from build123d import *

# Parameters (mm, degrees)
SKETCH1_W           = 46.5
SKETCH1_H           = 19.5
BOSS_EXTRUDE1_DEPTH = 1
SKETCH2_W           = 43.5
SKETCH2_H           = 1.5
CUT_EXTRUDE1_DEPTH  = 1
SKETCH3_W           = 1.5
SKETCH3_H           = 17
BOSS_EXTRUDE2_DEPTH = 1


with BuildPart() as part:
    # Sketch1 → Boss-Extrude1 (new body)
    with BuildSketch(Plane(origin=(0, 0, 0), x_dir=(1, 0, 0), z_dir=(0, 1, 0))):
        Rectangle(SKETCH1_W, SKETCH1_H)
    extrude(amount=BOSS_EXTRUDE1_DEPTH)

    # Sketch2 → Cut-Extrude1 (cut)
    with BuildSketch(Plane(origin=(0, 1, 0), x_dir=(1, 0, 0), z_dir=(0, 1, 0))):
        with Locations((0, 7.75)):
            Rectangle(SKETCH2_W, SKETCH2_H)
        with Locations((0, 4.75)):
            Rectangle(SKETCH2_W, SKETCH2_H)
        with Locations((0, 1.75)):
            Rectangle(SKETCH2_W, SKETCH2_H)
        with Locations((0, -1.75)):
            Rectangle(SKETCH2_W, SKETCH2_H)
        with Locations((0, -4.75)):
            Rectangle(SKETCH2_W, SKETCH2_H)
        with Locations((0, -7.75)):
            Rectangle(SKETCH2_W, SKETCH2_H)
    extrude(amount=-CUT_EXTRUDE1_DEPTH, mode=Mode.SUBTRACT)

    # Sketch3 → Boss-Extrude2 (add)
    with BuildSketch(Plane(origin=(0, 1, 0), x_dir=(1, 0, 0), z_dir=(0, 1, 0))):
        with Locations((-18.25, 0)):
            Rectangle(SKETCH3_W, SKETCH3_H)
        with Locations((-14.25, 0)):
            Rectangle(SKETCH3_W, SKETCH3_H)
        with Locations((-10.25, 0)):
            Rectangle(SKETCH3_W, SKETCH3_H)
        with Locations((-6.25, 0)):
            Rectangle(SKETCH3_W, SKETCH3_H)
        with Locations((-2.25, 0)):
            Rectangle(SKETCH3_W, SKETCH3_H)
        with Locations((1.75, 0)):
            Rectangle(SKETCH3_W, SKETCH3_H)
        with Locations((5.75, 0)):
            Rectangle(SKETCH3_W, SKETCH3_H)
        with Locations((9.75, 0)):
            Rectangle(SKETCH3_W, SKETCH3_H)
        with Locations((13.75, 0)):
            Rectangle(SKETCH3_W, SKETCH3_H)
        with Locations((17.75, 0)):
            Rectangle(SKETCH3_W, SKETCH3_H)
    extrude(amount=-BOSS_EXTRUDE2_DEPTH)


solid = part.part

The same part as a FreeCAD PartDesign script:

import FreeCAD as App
import Part
import Sketcher

V = App.Vector

doc = App.newDocument("Part")
params = doc.addObject("Spreadsheet::Sheet", "Params")
for row, (alias, value) in enumerate([
    ("sketch1_width", "46.5 mm"),
    ("sketch1_height", "19.5 mm"),
    ("pad1_length", "1 mm"),
    ("sketch2_width", "43.5 mm"),
    ("sketch2_height", "1.5 mm"),
    ("pocket1_length", "1 mm"),
    ("sketch3_height", "17 mm"),
    ("sketch3_width", "1.5 mm"),
    ("pad2_length", "1 mm"),
], start=1):
    params.set(f"A{row}", alias)
    params.set(f"B{row}", "=" + value)
    params.setAlias(f"B{row}", alias)

body = doc.addObject("PartDesign::Body", "Body")

# Sketch on XZ plane
sketch1 = body.newObject("Sketcher::SketchObject", "Sketch")
sketch1.AttachmentSupport = (doc.getObject("XZ_Plane"), [""])
sketch1.MapMode = "FlatFace"
sketch1.addGeometry([
    Part.LineSegment(V(-23, -10, 0), V(-23, 10, 0)),
    Part.LineSegment(V(-23, 10, 0), V(23, 10, 0)),
    Part.LineSegment(V(23, 10, 0), V(23, -10, 0)),
    Part.LineSegment(V(23, -10, 0), V(-23, -10, 0)),
], False)
sketch1.addConstraint([
    Sketcher.Constraint("Coincident", 0, 2, 1, 1),
    Sketcher.Constraint("Coincident", 1, 2, 2, 1),
    Sketcher.Constraint("Coincident", 2, 2, 3, 1),
    Sketcher.Constraint("Coincident", 3, 2, 0, 1),
    Sketcher.Constraint("Vertical", 0),
    Sketcher.Constraint("Horizontal", 1),
    Sketcher.Constraint("Vertical", 2),
    Sketcher.Constraint("Horizontal", 3),
    Sketcher.Constraint("Symmetric", 0, 2, 2, 2, -1, 1),
    Sketcher.Constraint("DistanceX", 1, 1, 1, 2, 46.5),
    Sketcher.Constraint("DistanceY", 0, 1, 0, 2, 19.5),
])
sketch1.setExpression("Constraints[9]", "Params.sketch1_width")
sketch1.setExpression("Constraints[10]", "Params.sketch1_height")
pad1 = body.newObject("PartDesign::Pad", "Pad")
pad1.Profile = sketch1
pad1.setExpression("Length", "Params.pad1_length")
pad1.Reversed = True

# Sketch on XZ plane
sketch2 = body.newObject("Sketcher::SketchObject", "Sketch001")
sketch2.AttachmentSupport = (doc.getObject("XZ_Plane"), [""])
sketch2.MapMode = "FlatFace"
sketch2.AttachmentOffset = App.Placement(V(0, 0, -1), App.Rotation())
sketch2.addGeometry([
    Part.LineSegment(V(-21.8, -8.5, 0), V(-21.8, -7, 0)),  # 0
    Part.LineSegment(V(-21.8, -7, 0), V(21.8, -7, 0)),  # 1
    Part.LineSegment(V(21.8, -7, 0), V(21.8, -8.5, 0)),  # 2
    Part.LineSegment(V(21.8, -8.5, 0), V(-21.8, -8.5, 0)),  # 3
    Part.LineSegment(V(-21.8, -5.5, 0), V(-21.8, -4, 0)),  # 4
    Part.LineSegment(V(-21.8, -4, 0), V(21.8, -4, 0)),  # 5
    Part.LineSegment(V(21.8, -4, 0), V(21.8, -5.5, 0)),  # 6
    Part.LineSegment(V(21.8, -5.5, 0), V(-21.8, -5.5, 0)),  # 7
    Part.LineSegment(V(-21.8, -2.5, 0), V(-21.8, -1, 0)),  # 8
    Part.LineSegment(V(-21.8, -1, 0), V(21.8, -1, 0)),  # 9
    Part.LineSegment(V(21.8, -1, 0), V(21.8, -2.5, 0)),  # 10
    Part.LineSegment(V(21.8, -2.5, 0), V(-21.8, -2.5, 0)),  # 11
    Part.LineSegment(V(-21.8, 1, 0), V(-21.8, 2.5, 0)),  # 12
    Part.LineSegment(V(-21.8, 2.5, 0), V(21.8, 2.5, 0)),  # 13
    Part.LineSegment(V(21.8, 2.5, 0), V(21.8, 1, 0)),  # 14
    Part.LineSegment(V(21.8, 1, 0), V(-21.8, 1, 0)),  # 15
    Part.LineSegment(V(-21.8, 4, 0), V(-21.8, 5.5, 0)),  # 16
    Part.LineSegment(V(-21.8, 5.5, 0), V(21.8, 5.5, 0)),  # 17
    Part.LineSegment(V(21.8, 5.5, 0), V(21.8, 4, 0)),  # 18
    Part.LineSegment(V(21.8, 4, 0), V(-21.8, 4, 0)),  # 19
    Part.LineSegment(V(-21.8, 7, 0), V(-21.8, 8.5, 0)),  # 20
    Part.LineSegment(V(-21.8, 8.5, 0), V(21.8, 8.5, 0)),  # 21
    Part.LineSegment(V(21.8, 8.5, 0), V(21.8, 7, 0)),  # 22
    Part.LineSegment(V(21.8, 7, 0), V(-21.8, 7, 0)),  # 23
], False)
sketch2.addConstraint([
    Sketcher.Constraint("Coincident", 0, 2, 1, 1),
    Sketcher.Constraint("Coincident", 1, 2, 2, 1),
    Sketcher.Constraint("Coincident", 2, 2, 3, 1),
    Sketcher.Constraint("Coincident", 3, 2, 0, 1),
    Sketcher.Constraint("Coincident", 4, 2, 5, 1),
    Sketcher.Constraint("Coincident", 5, 2, 6, 1),
    Sketcher.Constraint("Coincident", 6, 2, 7, 1),
    Sketcher.Constraint("Coincident", 7, 2, 4, 1),
    Sketcher.Constraint("Coincident", 8, 2, 9, 1),
    Sketcher.Constraint("Coincident", 9, 2, 10, 1),
    Sketcher.Constraint("Coincident", 10, 2, 11, 1),
    Sketcher.Constraint("Coincident", 11, 2, 8, 1),
    Sketcher.Constraint("Coincident", 12, 2, 13, 1),
    Sketcher.Constraint("Coincident", 13, 2, 14, 1),
    Sketcher.Constraint("Coincident", 14, 2, 15, 1),
    Sketcher.Constraint("Coincident", 15, 2, 12, 1),
    Sketcher.Constraint("Coincident", 16, 2, 17, 1),
    Sketcher.Constraint("Coincident", 17, 2, 18, 1),
    Sketcher.Constraint("Coincident", 18, 2, 19, 1),
    Sketcher.Constraint("Coincident", 19, 2, 16, 1),
    Sketcher.Constraint("Coincident", 20, 2, 21, 1),
    Sketcher.Constraint("Coincident", 21, 2, 22, 1),
    Sketcher.Constraint("Coincident", 22, 2, 23, 1),
    Sketcher.Constraint("Coincident", 23, 2, 20, 1),
    Sketcher.Constraint("Vertical", 0),
    Sketcher.Constraint("Horizontal", 1),
    Sketcher.Constraint("Vertical", 2),
    Sketcher.Constraint("Horizontal", 3),
    Sketcher.Constraint("Vertical", 4),
    Sketcher.Constraint("Horizontal", 5),
    Sketcher.Constraint("Vertical", 6),
    Sketcher.Constraint("Horizontal", 7),
    Sketcher.Constraint("Vertical", 8),
    Sketcher.Constraint("Horizontal", 9),
    Sketcher.Constraint("Vertical", 10),
    Sketcher.Constraint("Horizontal", 11),
    Sketcher.Constraint("Vertical", 12),
    Sketcher.Constraint("Horizontal", 13),
    Sketcher.Constraint("Vertical", 14),
    Sketcher.Constraint("Horizontal", 15),
    Sketcher.Constraint("Vertical", 16),
    Sketcher.Constraint("Horizontal", 17),
    Sketcher.Constraint("Vertical", 18),
    Sketcher.Constraint("Horizontal", 19),
    Sketcher.Constraint("Vertical", 20),
    Sketcher.Constraint("Horizontal", 21),
    Sketcher.Constraint("Vertical", 22),
    Sketcher.Constraint("Horizontal", 23),
    Sketcher.Constraint("Symmetric", 10, 2, 12, 2, -1, 1),
    Sketcher.Constraint("Symmetric", 8, 2, 14, 2, -1, 1),
    Sketcher.Constraint("Symmetric", 6, 2, 16, 2, -1, 1),
    Sketcher.Constraint("Symmetric", 4, 2, 18, 2, -1, 1),
    Sketcher.Constraint("Symmetric", 2, 2, 20, 2, -1, 1),
    Sketcher.Constraint("Symmetric", 0, 2, 22, 2, -1, 1),
    Sketcher.Constraint("Vertical", 3, 2, 4, 2),
    Sketcher.Constraint("Vertical", 2, 2, 5, 2),
    Sketcher.Constraint("Vertical", 7, 2, 8, 2),
    Sketcher.Constraint("Vertical", 6, 2, 9, 2),
    Sketcher.Constraint("Vertical", 11, 2, 12, 2),
    Sketcher.Constraint("Equal", 2, 4),
    Sketcher.Constraint("Equal", 6, 8),
    Sketcher.Constraint("DistanceX", 1, 1, 1, 2, 43.5),
    Sketcher.Constraint("DistanceY", 0, 1, 0, 2, 1.5),
    Sketcher.Constraint("DistanceY", 0, 2, -1, 1, 7.0),
    Sketcher.Constraint("DistanceY", 4, 2, -1, 1, 4.0),
    Sketcher.Constraint("DistanceY", 8, 2, -1, 1, 1.0),
])
sketch2.setExpression("Constraints[61]", "Params.sketch2_width")
sketch2.setExpression("Constraints[62]", "Params.sketch2_height")
pocket1 = body.newObject("PartDesign::Pocket", "Pocket")
pocket1.Profile = sketch2
pocket1.setExpression("Length", "Params.pocket1_length")
pocket1.Reversed = True

# Sketch on XZ plane
sketch3 = body.newObject("Sketcher::SketchObject", "Sketch002")
sketch3.AttachmentSupport = (doc.getObject("XZ_Plane"), [""])
sketch3.MapMode = "FlatFace"
sketch3.AttachmentOffset = App.Placement(V(0, 0, -1), App.Rotation())
sketch3.addGeometry([
    Part.LineSegment(V(-19, -8.5, 0), V(-19, 8.5, 0)),  # 0
    Part.LineSegment(V(-19, 8.5, 0), V(-17.5, 8.5, 0)),  # 1
    Part.LineSegment(V(-17.5, 8.5, 0), V(-17.5, -8.5, 0)),  # 2
    Part.LineSegment(V(-17.5, -8.5, 0), V(-19, -8.5, 0)),  # 3
    Part.LineSegment(V(-15, -8.5, 0), V(-15, 8.5, 0)),  # 4
    Part.LineSegment(V(-15, 8.5, 0), V(-13.5, 8.5, 0)),  # 5
    Part.LineSegment(V(-13.5, 8.5, 0), V(-13.5, -8.5, 0)),  # 6
    Part.LineSegment(V(-13.5, -8.5, 0), V(-15, -8.5, 0)),  # 7
    Part.LineSegment(V(-11, -8.5, 0), V(-11, 8.5, 0)),  # 8
    Part.LineSegment(V(-11, 8.5, 0), V(-9.5, 8.5, 0)),  # 9
    Part.LineSegment(V(-9.5, 8.5, 0), V(-9.5, -8.5, 0)),  # 10
    Part.LineSegment(V(-9.5, -8.5, 0), V(-11, -8.5, 0)),  # 11
    Part.LineSegment(V(-7, -8.5, 0), V(-7, 8.5, 0)),  # 12
    Part.LineSegment(V(-7, 8.5, 0), V(-5.5, 8.5, 0)),  # 13
    Part.LineSegment(V(-5.5, 8.5, 0), V(-5.5, -8.5, 0)),  # 14
    Part.LineSegment(V(-5.5, -8.5, 0), V(-7, -8.5, 0)),  # 15
    Part.LineSegment(V(-3, -8.5, 0), V(-3, 8.5, 0)),  # 16
    Part.LineSegment(V(-3, 8.5, 0), V(-1.5, 8.5, 0)),  # 17
    Part.LineSegment(V(-1.5, 8.5, 0), V(-1.5, -8.5, 0)),  # 18
    Part.LineSegment(V(-1.5, -8.5, 0), V(-3, -8.5, 0)),  # 19
    Part.LineSegment(V(1, -8.5, 0), V(1, 8.5, 0)),  # 20
    Part.LineSegment(V(1, 8.5, 0), V(2.5, 8.5, 0)),  # 21
    Part.LineSegment(V(2.5, 8.5, 0), V(2.5, -8.5, 0)),  # 22
    Part.LineSegment(V(2.5, -8.5, 0), V(1, -8.5, 0)),  # 23
    Part.LineSegment(V(5, -8.5, 0), V(5, 8.5, 0)),  # 24
    Part.LineSegment(V(5, 8.5, 0), V(6.5, 8.5, 0)),  # 25
    Part.LineSegment(V(6.5, 8.5, 0), V(6.5, -8.5, 0)),  # 26
    Part.LineSegment(V(6.5, -8.5, 0), V(5, -8.5, 0)),  # 27
    Part.LineSegment(V(9, -8.5, 0), V(9, 8.5, 0)),  # 28
    Part.LineSegment(V(9, 8.5, 0), V(10.5, 8.5, 0)),  # 29
    Part.LineSegment(V(10.5, 8.5, 0), V(10.5, -8.5, 0)),  # 30
    Part.LineSegment(V(10.5, -8.5, 0), V(9, -8.5, 0)),  # 31
    Part.LineSegment(V(13, -8.5, 0), V(13, 8.5, 0)),  # 32
    Part.LineSegment(V(13, 8.5, 0), V(14.5, 8.5, 0)),  # 33
    Part.LineSegment(V(14.5, 8.5, 0), V(14.5, -8.5, 0)),  # 34
    Part.LineSegment(V(14.5, -8.5, 0), V(13, -8.5, 0)),  # 35
    Part.LineSegment(V(17, -8.5, 0), V(17, 8.5, 0)),  # 36
    Part.LineSegment(V(17, 8.5, 0), V(18.5, 8.5, 0)),  # 37
    Part.LineSegment(V(18.5, 8.5, 0), V(18.5, -8.5, 0)),  # 38
    Part.LineSegment(V(18.5, -8.5, 0), V(17, -8.5, 0)),  # 39
], False)
sketch3.addConstraint([
    Sketcher.Constraint("Coincident", 0, 2, 1, 1),
    Sketcher.Constraint("Coincident", 1, 2, 2, 1),
    Sketcher.Constraint("Coincident", 2, 2, 3, 1),
    Sketcher.Constraint("Coincident", 3, 2, 0, 1),
    Sketcher.Constraint("Coincident", 4, 2, 5, 1),
    Sketcher.Constraint("Coincident", 5, 2, 6, 1),
    Sketcher.Constraint("Coincident", 6, 2, 7, 1),
    Sketcher.Constraint("Coincident", 7, 2, 4, 1),
    Sketcher.Constraint("Coincident", 8, 2, 9, 1),
    Sketcher.Constraint("Coincident", 9, 2, 10, 1),
    Sketcher.Constraint("Coincident", 10, 2, 11, 1),
    Sketcher.Constraint("Coincident", 11, 2, 8, 1),
    Sketcher.Constraint("Coincident", 12, 2, 13, 1),
    Sketcher.Constraint("Coincident", 13, 2, 14, 1),
    Sketcher.Constraint("Coincident", 14, 2, 15, 1),
    Sketcher.Constraint("Coincident", 15, 2, 12, 1),
    Sketcher.Constraint("Coincident", 16, 2, 17, 1),
    Sketcher.Constraint("Coincident", 17, 2, 18, 1),
    Sketcher.Constraint("Coincident", 18, 2, 19, 1),
    Sketcher.Constraint("Coincident", 19, 2, 16, 1),
    Sketcher.Constraint("Coincident", 20, 2, 21, 1),
    Sketcher.Constraint("Coincident", 21, 2, 22, 1),
    Sketcher.Constraint("Coincident", 22, 2, 23, 1),
    Sketcher.Constraint("Coincident", 23, 2, 20, 1),
    Sketcher.Constraint("Coincident", 24, 2, 25, 1),
    Sketcher.Constraint("Coincident", 25, 2, 26, 1),
    Sketcher.Constraint("Coincident", 26, 2, 27, 1),
    Sketcher.Constraint("Coincident", 27, 2, 24, 1),
    Sketcher.Constraint("Coincident", 28, 2, 29, 1),
    Sketcher.Constraint("Coincident", 29, 2, 30, 1),
    Sketcher.Constraint("Coincident", 30, 2, 31, 1),
    Sketcher.Constraint("Coincident", 31, 2, 28, 1),
    Sketcher.Constraint("Coincident", 32, 2, 33, 1),
    Sketcher.Constraint("Coincident", 33, 2, 34, 1),
    Sketcher.Constraint("Coincident", 34, 2, 35, 1),
    Sketcher.Constraint("Coincident", 35, 2, 32, 1),
    Sketcher.Constraint("Coincident", 36, 2, 37, 1),
    Sketcher.Constraint("Coincident", 37, 2, 38, 1),
    Sketcher.Constraint("Coincident", 38, 2, 39, 1),
    Sketcher.Constraint("Coincident", 39, 2, 36, 1),
    Sketcher.Constraint("Vertical", 0),
    Sketcher.Constraint("Horizontal", 1),
    Sketcher.Constraint("Vertical", 2),
    Sketcher.Constraint("Horizontal", 3),
    Sketcher.Constraint("Vertical", 4),
    Sketcher.Constraint("Horizontal", 5),
    Sketcher.Constraint("Vertical", 6),
    Sketcher.Constraint("Horizontal", 7),
    Sketcher.Constraint("Vertical", 8),
    Sketcher.Constraint("Horizontal", 9),
    Sketcher.Constraint("Vertical", 10),
    Sketcher.Constraint("Horizontal", 11),
    Sketcher.Constraint("Vertical", 12),
    Sketcher.Constraint("Horizontal", 13),
    Sketcher.Constraint("Vertical", 14),
    Sketcher.Constraint("Horizontal", 15),
    Sketcher.Constraint("Vertical", 16),
    Sketcher.Constraint("Horizontal", 17),
    Sketcher.Constraint("Vertical", 18),
    Sketcher.Constraint("Horizontal", 19),
    Sketcher.Constraint("Vertical", 20),
    Sketcher.Constraint("Horizontal", 21),
    Sketcher.Constraint("Vertical", 22),
    Sketcher.Constraint("Horizontal", 23),
    Sketcher.Constraint("Vertical", 24),
    Sketcher.Constraint("Horizontal", 25),
    Sketcher.Constraint("Vertical", 26),
    Sketcher.Constraint("Horizontal", 27),
    Sketcher.Constraint("Vertical", 28),
    Sketcher.Constraint("Horizontal", 29),
    Sketcher.Constraint("Vertical", 30),
    Sketcher.Constraint("Horizontal", 31),
    Sketcher.Constraint("Vertical", 32),
    Sketcher.Constraint("Horizontal", 33),
    Sketcher.Constraint("Vertical", 34),
    Sketcher.Constraint("Horizontal", 35),
    Sketcher.Constraint("Vertical", 36),
    Sketcher.Constraint("Horizontal", 37),
    Sketcher.Constraint("Vertical", 38),
    Sketcher.Constraint("Horizontal", 39),
    Sketcher.Constraint("Horizontal", 1, 2, 4, 2),
    Sketcher.Constraint("Horizontal", 3, 2, 6, 2),
    Sketcher.Constraint("Horizontal", 5, 2, 8, 2),
    Sketcher.Constraint("Horizontal", 7, 2, 10, 2),
    Sketcher.Constraint("Horizontal", 9, 2, 12, 2),
    Sketcher.Constraint("Horizontal", 11, 2, 14, 2),
    Sketcher.Constraint("Horizontal", 13, 2, 16, 2),
    Sketcher.Constraint("Horizontal", 15, 2, 18, 2),
    Sketcher.Constraint("Horizontal", 17, 2, 20, 2),
    Sketcher.Constraint("Horizontal", 19, 2, 22, 2),
    Sketcher.Constraint("Horizontal", 21, 2, 24, 2),
    Sketcher.Constraint("Horizontal", 23, 2, 26, 2),
    Sketcher.Constraint("Horizontal", 25, 2, 28, 2),
    Sketcher.Constraint("Horizontal", 27, 2, 30, 2),
    Sketcher.Constraint("Horizontal", 29, 2, 32, 2),
    Sketcher.Constraint("Horizontal", 31, 2, 34, 2),
    Sketcher.Constraint("Horizontal", 33, 2, 36, 2),
    Sketcher.Constraint("Horizontal", 35, 2, 38, 2),
    Sketcher.Constraint("Equal", 3, 5),
    Sketcher.Constraint("Equal", 7, 9),
    Sketcher.Constraint("Equal", 11, 13),
    Sketcher.Constraint("Equal", 15, 17),
    Sketcher.Constraint("Equal", 19, 21),
    Sketcher.Constraint("Equal", 23, 25),
    Sketcher.Constraint("Equal", 27, 29),
    Sketcher.Constraint("Equal", 31, 33),
    Sketcher.Constraint("Equal", 35, 37),
    Sketcher.Constraint("DistanceY", 0, 1, 0, 2, 17.0),
    Sketcher.Constraint("DistanceX", 1, 1, 1, 2, 1.5),
    Sketcher.Constraint("DistanceX", 0, 2, -1, 1, 19.0),
    Sketcher.Constraint("DistanceX", 4, 2, -1, 1, 15.0),
    Sketcher.Constraint("DistanceX", 8, 2, -1, 1, 11.0),
    Sketcher.Constraint("DistanceX", 12, 2, -1, 1, 7.0),
    Sketcher.Constraint("DistanceX", 16, 2, -1, 1, 3.0),
    Sketcher.Constraint("DistanceX", -1, 1, 20, 2, 1.0),
    Sketcher.Constraint("DistanceX", -1, 1, 24, 2, 5.0),
    Sketcher.Constraint("DistanceX", -1, 1, 28, 2, 9.0),
    Sketcher.Constraint("DistanceX", -1, 1, 32, 2, 13.0),
    Sketcher.Constraint("DistanceX", -1, 1, 36, 2, 17.0),
    Sketcher.Constraint("DistanceY", -1, 1, 0, 2, 8.5),
])
sketch3.setExpression("Constraints[107]", "Params.sketch3_height")
sketch3.setExpression("Constraints[108]", "Params.sketch3_width")
pad2 = body.newObject("PartDesign::Pad", "Pad001")
pad2.Profile = sketch3
pad2.setExpression("Length", "Params.pad2_length")

doc.recompute()
